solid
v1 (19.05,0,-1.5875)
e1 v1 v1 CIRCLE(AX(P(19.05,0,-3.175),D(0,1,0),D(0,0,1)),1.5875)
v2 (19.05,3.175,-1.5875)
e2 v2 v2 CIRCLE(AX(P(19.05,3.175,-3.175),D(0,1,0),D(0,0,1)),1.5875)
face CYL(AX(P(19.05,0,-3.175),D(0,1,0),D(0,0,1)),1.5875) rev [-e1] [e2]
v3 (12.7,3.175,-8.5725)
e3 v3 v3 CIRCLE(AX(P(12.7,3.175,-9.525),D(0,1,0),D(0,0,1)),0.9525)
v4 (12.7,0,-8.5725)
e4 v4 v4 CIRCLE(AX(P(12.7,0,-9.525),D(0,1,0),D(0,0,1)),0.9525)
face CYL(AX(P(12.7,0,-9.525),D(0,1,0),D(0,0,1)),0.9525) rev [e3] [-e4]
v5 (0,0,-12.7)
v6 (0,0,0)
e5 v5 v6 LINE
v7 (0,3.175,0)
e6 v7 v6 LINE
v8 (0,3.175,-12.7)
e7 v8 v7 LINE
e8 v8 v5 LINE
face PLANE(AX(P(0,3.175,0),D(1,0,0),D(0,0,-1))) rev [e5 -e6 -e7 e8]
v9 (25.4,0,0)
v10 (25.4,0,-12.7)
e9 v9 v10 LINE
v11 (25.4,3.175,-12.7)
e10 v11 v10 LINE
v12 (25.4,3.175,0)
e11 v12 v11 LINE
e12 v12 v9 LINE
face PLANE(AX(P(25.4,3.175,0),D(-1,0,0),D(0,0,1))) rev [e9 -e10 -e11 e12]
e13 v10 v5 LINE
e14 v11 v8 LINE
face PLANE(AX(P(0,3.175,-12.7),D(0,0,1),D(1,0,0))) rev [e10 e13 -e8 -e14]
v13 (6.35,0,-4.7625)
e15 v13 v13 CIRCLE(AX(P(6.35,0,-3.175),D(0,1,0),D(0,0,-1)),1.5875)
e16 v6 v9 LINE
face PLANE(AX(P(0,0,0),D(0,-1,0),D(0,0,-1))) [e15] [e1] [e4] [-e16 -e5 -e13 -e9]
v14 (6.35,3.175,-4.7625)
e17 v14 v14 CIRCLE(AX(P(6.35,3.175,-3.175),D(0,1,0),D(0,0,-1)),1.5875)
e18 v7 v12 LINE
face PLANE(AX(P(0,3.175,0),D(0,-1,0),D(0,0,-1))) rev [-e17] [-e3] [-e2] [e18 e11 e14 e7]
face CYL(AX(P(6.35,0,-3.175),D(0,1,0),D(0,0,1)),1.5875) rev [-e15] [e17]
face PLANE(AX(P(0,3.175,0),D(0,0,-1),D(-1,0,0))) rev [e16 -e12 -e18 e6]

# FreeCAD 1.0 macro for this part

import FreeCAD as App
import Part
import Sketcher
from FreeCAD import Vector
Q = App.Units.Quantity


def add_polygon(sketch, points):
    """Adds a closed chain of lines whose ends are joined by coincident constraints."""
    first, n = sketch.GeometryCount, len(points)
    for a, b in zip(points, points[1:] + points[:1]):
        sketch.addGeometry(Part.LineSegment(App.Vector(*a, 0), App.Vector(*b, 0)), False)
    for i in range(n):
        sketch.addConstraint(Sketcher.Constraint("Coincident", first + i, 2, first + (i + 1) % n, 1))

doc = App.newDocument("Part")
body = doc.addObject("PartDesign::Body", "Body")

sketch1 = body.newObject("Sketcher::SketchObject", "Sketch")
sketch1.AttachmentSupport = (doc.getObject("XZ_Plane"), [""])
sketch1.MapMode = "FlatFace"
add_polygon(sketch1, [(0, -13), (0, 0), (25, 0), (25, -13)])
sketch1.addConstraint(Sketcher.Constraint("Vertical", 0))
sketch1.addConstraint(Sketcher.Constraint("Horizontal", 1))
sketch1.addConstraint(Sketcher.Constraint("Vertical", 2))
sketch1.addConstraint(Sketcher.Constraint("Horizontal", 3))
sketch1.addConstraint(Sketcher.Constraint("Coincident", 0, 2, -1, 1))
sketch1.addConstraint(Sketcher.Constraint("DistanceX", 1, 1, 1, 2, Q("1 in")))
sketch1.addConstraint(Sketcher.Constraint("DistanceY", 0, 1, 0, 2, Q("0.5 in")))
pad1 = body.newObject("PartDesign::Pad", "Pad")
pad1.Profile = sketch1
pad1.Length = Q("0.125 in")
pad1.Reversed = True

sketch2 = body.newObject("Sketcher::SketchObject", "Sketch001")
sketch2.AttachmentSupport = (doc.getObject("XZ_Plane"), [""])
sketch2.MapMode = "FlatFace"
sketch2.AttachmentOffset = App.Placement(Vector(0, 0, -0.125 * 25.4), App.Rotation())
sketch2.addGeometry(Part.Circle(Vector(19.1, -3.2, 0), Vector(0, 0, 1), 1.6), False)
sketch2.addGeometry(Part.Circle(Vector(6.3, -3.2, 0), Vector(0, 0, 1), 1.6), False)
sketch2.addGeometry(Part.Circle(Vector(12.7, -9.5, 0), Vector(0, 0, 1), 1), False)
sketch2.addConstraint(Sketcher.Constraint("Equal", 0, 1))
sketch2.addConstraint(Sketcher.Constraint("Horizontal", 0, 3, 1, 3))
sketch2.addConstraint(Sketcher.Constraint("Diameter", 0, Q("0.125 in")))
sketch2.addConstraint(Sketcher.Constraint("Diameter", 2, Q("0.075 in")))
sketch2.addConstraint(Sketcher.Constraint("DistanceX", -1, 1, 2, 3, Q("0.5 in")))
sketch2.addConstraint(Sketcher.Constraint("DistanceX", 1, 3, 0, 3, Q("0.5 in")))
sketch2.addConstraint(Sketcher.Constraint("DistanceX", -1, 1, 0, 3, Q("0.75 in")))
sketch2.addConstraint(Sketcher.Constraint("DistanceY", 2, 3, 1, 3, Q("0.25 in")))
sketch2.addConstraint(Sketcher.Constraint("DistanceY", 0, 3, -1, 1, Q("0.125 in")))
pocket1 = body.newObject("PartDesign::Pocket", "Pocket")
pocket1.Profile = sketch2
pocket1.Type = "ThroughAll"
pocket1.Reversed = True

doc.recompute()
